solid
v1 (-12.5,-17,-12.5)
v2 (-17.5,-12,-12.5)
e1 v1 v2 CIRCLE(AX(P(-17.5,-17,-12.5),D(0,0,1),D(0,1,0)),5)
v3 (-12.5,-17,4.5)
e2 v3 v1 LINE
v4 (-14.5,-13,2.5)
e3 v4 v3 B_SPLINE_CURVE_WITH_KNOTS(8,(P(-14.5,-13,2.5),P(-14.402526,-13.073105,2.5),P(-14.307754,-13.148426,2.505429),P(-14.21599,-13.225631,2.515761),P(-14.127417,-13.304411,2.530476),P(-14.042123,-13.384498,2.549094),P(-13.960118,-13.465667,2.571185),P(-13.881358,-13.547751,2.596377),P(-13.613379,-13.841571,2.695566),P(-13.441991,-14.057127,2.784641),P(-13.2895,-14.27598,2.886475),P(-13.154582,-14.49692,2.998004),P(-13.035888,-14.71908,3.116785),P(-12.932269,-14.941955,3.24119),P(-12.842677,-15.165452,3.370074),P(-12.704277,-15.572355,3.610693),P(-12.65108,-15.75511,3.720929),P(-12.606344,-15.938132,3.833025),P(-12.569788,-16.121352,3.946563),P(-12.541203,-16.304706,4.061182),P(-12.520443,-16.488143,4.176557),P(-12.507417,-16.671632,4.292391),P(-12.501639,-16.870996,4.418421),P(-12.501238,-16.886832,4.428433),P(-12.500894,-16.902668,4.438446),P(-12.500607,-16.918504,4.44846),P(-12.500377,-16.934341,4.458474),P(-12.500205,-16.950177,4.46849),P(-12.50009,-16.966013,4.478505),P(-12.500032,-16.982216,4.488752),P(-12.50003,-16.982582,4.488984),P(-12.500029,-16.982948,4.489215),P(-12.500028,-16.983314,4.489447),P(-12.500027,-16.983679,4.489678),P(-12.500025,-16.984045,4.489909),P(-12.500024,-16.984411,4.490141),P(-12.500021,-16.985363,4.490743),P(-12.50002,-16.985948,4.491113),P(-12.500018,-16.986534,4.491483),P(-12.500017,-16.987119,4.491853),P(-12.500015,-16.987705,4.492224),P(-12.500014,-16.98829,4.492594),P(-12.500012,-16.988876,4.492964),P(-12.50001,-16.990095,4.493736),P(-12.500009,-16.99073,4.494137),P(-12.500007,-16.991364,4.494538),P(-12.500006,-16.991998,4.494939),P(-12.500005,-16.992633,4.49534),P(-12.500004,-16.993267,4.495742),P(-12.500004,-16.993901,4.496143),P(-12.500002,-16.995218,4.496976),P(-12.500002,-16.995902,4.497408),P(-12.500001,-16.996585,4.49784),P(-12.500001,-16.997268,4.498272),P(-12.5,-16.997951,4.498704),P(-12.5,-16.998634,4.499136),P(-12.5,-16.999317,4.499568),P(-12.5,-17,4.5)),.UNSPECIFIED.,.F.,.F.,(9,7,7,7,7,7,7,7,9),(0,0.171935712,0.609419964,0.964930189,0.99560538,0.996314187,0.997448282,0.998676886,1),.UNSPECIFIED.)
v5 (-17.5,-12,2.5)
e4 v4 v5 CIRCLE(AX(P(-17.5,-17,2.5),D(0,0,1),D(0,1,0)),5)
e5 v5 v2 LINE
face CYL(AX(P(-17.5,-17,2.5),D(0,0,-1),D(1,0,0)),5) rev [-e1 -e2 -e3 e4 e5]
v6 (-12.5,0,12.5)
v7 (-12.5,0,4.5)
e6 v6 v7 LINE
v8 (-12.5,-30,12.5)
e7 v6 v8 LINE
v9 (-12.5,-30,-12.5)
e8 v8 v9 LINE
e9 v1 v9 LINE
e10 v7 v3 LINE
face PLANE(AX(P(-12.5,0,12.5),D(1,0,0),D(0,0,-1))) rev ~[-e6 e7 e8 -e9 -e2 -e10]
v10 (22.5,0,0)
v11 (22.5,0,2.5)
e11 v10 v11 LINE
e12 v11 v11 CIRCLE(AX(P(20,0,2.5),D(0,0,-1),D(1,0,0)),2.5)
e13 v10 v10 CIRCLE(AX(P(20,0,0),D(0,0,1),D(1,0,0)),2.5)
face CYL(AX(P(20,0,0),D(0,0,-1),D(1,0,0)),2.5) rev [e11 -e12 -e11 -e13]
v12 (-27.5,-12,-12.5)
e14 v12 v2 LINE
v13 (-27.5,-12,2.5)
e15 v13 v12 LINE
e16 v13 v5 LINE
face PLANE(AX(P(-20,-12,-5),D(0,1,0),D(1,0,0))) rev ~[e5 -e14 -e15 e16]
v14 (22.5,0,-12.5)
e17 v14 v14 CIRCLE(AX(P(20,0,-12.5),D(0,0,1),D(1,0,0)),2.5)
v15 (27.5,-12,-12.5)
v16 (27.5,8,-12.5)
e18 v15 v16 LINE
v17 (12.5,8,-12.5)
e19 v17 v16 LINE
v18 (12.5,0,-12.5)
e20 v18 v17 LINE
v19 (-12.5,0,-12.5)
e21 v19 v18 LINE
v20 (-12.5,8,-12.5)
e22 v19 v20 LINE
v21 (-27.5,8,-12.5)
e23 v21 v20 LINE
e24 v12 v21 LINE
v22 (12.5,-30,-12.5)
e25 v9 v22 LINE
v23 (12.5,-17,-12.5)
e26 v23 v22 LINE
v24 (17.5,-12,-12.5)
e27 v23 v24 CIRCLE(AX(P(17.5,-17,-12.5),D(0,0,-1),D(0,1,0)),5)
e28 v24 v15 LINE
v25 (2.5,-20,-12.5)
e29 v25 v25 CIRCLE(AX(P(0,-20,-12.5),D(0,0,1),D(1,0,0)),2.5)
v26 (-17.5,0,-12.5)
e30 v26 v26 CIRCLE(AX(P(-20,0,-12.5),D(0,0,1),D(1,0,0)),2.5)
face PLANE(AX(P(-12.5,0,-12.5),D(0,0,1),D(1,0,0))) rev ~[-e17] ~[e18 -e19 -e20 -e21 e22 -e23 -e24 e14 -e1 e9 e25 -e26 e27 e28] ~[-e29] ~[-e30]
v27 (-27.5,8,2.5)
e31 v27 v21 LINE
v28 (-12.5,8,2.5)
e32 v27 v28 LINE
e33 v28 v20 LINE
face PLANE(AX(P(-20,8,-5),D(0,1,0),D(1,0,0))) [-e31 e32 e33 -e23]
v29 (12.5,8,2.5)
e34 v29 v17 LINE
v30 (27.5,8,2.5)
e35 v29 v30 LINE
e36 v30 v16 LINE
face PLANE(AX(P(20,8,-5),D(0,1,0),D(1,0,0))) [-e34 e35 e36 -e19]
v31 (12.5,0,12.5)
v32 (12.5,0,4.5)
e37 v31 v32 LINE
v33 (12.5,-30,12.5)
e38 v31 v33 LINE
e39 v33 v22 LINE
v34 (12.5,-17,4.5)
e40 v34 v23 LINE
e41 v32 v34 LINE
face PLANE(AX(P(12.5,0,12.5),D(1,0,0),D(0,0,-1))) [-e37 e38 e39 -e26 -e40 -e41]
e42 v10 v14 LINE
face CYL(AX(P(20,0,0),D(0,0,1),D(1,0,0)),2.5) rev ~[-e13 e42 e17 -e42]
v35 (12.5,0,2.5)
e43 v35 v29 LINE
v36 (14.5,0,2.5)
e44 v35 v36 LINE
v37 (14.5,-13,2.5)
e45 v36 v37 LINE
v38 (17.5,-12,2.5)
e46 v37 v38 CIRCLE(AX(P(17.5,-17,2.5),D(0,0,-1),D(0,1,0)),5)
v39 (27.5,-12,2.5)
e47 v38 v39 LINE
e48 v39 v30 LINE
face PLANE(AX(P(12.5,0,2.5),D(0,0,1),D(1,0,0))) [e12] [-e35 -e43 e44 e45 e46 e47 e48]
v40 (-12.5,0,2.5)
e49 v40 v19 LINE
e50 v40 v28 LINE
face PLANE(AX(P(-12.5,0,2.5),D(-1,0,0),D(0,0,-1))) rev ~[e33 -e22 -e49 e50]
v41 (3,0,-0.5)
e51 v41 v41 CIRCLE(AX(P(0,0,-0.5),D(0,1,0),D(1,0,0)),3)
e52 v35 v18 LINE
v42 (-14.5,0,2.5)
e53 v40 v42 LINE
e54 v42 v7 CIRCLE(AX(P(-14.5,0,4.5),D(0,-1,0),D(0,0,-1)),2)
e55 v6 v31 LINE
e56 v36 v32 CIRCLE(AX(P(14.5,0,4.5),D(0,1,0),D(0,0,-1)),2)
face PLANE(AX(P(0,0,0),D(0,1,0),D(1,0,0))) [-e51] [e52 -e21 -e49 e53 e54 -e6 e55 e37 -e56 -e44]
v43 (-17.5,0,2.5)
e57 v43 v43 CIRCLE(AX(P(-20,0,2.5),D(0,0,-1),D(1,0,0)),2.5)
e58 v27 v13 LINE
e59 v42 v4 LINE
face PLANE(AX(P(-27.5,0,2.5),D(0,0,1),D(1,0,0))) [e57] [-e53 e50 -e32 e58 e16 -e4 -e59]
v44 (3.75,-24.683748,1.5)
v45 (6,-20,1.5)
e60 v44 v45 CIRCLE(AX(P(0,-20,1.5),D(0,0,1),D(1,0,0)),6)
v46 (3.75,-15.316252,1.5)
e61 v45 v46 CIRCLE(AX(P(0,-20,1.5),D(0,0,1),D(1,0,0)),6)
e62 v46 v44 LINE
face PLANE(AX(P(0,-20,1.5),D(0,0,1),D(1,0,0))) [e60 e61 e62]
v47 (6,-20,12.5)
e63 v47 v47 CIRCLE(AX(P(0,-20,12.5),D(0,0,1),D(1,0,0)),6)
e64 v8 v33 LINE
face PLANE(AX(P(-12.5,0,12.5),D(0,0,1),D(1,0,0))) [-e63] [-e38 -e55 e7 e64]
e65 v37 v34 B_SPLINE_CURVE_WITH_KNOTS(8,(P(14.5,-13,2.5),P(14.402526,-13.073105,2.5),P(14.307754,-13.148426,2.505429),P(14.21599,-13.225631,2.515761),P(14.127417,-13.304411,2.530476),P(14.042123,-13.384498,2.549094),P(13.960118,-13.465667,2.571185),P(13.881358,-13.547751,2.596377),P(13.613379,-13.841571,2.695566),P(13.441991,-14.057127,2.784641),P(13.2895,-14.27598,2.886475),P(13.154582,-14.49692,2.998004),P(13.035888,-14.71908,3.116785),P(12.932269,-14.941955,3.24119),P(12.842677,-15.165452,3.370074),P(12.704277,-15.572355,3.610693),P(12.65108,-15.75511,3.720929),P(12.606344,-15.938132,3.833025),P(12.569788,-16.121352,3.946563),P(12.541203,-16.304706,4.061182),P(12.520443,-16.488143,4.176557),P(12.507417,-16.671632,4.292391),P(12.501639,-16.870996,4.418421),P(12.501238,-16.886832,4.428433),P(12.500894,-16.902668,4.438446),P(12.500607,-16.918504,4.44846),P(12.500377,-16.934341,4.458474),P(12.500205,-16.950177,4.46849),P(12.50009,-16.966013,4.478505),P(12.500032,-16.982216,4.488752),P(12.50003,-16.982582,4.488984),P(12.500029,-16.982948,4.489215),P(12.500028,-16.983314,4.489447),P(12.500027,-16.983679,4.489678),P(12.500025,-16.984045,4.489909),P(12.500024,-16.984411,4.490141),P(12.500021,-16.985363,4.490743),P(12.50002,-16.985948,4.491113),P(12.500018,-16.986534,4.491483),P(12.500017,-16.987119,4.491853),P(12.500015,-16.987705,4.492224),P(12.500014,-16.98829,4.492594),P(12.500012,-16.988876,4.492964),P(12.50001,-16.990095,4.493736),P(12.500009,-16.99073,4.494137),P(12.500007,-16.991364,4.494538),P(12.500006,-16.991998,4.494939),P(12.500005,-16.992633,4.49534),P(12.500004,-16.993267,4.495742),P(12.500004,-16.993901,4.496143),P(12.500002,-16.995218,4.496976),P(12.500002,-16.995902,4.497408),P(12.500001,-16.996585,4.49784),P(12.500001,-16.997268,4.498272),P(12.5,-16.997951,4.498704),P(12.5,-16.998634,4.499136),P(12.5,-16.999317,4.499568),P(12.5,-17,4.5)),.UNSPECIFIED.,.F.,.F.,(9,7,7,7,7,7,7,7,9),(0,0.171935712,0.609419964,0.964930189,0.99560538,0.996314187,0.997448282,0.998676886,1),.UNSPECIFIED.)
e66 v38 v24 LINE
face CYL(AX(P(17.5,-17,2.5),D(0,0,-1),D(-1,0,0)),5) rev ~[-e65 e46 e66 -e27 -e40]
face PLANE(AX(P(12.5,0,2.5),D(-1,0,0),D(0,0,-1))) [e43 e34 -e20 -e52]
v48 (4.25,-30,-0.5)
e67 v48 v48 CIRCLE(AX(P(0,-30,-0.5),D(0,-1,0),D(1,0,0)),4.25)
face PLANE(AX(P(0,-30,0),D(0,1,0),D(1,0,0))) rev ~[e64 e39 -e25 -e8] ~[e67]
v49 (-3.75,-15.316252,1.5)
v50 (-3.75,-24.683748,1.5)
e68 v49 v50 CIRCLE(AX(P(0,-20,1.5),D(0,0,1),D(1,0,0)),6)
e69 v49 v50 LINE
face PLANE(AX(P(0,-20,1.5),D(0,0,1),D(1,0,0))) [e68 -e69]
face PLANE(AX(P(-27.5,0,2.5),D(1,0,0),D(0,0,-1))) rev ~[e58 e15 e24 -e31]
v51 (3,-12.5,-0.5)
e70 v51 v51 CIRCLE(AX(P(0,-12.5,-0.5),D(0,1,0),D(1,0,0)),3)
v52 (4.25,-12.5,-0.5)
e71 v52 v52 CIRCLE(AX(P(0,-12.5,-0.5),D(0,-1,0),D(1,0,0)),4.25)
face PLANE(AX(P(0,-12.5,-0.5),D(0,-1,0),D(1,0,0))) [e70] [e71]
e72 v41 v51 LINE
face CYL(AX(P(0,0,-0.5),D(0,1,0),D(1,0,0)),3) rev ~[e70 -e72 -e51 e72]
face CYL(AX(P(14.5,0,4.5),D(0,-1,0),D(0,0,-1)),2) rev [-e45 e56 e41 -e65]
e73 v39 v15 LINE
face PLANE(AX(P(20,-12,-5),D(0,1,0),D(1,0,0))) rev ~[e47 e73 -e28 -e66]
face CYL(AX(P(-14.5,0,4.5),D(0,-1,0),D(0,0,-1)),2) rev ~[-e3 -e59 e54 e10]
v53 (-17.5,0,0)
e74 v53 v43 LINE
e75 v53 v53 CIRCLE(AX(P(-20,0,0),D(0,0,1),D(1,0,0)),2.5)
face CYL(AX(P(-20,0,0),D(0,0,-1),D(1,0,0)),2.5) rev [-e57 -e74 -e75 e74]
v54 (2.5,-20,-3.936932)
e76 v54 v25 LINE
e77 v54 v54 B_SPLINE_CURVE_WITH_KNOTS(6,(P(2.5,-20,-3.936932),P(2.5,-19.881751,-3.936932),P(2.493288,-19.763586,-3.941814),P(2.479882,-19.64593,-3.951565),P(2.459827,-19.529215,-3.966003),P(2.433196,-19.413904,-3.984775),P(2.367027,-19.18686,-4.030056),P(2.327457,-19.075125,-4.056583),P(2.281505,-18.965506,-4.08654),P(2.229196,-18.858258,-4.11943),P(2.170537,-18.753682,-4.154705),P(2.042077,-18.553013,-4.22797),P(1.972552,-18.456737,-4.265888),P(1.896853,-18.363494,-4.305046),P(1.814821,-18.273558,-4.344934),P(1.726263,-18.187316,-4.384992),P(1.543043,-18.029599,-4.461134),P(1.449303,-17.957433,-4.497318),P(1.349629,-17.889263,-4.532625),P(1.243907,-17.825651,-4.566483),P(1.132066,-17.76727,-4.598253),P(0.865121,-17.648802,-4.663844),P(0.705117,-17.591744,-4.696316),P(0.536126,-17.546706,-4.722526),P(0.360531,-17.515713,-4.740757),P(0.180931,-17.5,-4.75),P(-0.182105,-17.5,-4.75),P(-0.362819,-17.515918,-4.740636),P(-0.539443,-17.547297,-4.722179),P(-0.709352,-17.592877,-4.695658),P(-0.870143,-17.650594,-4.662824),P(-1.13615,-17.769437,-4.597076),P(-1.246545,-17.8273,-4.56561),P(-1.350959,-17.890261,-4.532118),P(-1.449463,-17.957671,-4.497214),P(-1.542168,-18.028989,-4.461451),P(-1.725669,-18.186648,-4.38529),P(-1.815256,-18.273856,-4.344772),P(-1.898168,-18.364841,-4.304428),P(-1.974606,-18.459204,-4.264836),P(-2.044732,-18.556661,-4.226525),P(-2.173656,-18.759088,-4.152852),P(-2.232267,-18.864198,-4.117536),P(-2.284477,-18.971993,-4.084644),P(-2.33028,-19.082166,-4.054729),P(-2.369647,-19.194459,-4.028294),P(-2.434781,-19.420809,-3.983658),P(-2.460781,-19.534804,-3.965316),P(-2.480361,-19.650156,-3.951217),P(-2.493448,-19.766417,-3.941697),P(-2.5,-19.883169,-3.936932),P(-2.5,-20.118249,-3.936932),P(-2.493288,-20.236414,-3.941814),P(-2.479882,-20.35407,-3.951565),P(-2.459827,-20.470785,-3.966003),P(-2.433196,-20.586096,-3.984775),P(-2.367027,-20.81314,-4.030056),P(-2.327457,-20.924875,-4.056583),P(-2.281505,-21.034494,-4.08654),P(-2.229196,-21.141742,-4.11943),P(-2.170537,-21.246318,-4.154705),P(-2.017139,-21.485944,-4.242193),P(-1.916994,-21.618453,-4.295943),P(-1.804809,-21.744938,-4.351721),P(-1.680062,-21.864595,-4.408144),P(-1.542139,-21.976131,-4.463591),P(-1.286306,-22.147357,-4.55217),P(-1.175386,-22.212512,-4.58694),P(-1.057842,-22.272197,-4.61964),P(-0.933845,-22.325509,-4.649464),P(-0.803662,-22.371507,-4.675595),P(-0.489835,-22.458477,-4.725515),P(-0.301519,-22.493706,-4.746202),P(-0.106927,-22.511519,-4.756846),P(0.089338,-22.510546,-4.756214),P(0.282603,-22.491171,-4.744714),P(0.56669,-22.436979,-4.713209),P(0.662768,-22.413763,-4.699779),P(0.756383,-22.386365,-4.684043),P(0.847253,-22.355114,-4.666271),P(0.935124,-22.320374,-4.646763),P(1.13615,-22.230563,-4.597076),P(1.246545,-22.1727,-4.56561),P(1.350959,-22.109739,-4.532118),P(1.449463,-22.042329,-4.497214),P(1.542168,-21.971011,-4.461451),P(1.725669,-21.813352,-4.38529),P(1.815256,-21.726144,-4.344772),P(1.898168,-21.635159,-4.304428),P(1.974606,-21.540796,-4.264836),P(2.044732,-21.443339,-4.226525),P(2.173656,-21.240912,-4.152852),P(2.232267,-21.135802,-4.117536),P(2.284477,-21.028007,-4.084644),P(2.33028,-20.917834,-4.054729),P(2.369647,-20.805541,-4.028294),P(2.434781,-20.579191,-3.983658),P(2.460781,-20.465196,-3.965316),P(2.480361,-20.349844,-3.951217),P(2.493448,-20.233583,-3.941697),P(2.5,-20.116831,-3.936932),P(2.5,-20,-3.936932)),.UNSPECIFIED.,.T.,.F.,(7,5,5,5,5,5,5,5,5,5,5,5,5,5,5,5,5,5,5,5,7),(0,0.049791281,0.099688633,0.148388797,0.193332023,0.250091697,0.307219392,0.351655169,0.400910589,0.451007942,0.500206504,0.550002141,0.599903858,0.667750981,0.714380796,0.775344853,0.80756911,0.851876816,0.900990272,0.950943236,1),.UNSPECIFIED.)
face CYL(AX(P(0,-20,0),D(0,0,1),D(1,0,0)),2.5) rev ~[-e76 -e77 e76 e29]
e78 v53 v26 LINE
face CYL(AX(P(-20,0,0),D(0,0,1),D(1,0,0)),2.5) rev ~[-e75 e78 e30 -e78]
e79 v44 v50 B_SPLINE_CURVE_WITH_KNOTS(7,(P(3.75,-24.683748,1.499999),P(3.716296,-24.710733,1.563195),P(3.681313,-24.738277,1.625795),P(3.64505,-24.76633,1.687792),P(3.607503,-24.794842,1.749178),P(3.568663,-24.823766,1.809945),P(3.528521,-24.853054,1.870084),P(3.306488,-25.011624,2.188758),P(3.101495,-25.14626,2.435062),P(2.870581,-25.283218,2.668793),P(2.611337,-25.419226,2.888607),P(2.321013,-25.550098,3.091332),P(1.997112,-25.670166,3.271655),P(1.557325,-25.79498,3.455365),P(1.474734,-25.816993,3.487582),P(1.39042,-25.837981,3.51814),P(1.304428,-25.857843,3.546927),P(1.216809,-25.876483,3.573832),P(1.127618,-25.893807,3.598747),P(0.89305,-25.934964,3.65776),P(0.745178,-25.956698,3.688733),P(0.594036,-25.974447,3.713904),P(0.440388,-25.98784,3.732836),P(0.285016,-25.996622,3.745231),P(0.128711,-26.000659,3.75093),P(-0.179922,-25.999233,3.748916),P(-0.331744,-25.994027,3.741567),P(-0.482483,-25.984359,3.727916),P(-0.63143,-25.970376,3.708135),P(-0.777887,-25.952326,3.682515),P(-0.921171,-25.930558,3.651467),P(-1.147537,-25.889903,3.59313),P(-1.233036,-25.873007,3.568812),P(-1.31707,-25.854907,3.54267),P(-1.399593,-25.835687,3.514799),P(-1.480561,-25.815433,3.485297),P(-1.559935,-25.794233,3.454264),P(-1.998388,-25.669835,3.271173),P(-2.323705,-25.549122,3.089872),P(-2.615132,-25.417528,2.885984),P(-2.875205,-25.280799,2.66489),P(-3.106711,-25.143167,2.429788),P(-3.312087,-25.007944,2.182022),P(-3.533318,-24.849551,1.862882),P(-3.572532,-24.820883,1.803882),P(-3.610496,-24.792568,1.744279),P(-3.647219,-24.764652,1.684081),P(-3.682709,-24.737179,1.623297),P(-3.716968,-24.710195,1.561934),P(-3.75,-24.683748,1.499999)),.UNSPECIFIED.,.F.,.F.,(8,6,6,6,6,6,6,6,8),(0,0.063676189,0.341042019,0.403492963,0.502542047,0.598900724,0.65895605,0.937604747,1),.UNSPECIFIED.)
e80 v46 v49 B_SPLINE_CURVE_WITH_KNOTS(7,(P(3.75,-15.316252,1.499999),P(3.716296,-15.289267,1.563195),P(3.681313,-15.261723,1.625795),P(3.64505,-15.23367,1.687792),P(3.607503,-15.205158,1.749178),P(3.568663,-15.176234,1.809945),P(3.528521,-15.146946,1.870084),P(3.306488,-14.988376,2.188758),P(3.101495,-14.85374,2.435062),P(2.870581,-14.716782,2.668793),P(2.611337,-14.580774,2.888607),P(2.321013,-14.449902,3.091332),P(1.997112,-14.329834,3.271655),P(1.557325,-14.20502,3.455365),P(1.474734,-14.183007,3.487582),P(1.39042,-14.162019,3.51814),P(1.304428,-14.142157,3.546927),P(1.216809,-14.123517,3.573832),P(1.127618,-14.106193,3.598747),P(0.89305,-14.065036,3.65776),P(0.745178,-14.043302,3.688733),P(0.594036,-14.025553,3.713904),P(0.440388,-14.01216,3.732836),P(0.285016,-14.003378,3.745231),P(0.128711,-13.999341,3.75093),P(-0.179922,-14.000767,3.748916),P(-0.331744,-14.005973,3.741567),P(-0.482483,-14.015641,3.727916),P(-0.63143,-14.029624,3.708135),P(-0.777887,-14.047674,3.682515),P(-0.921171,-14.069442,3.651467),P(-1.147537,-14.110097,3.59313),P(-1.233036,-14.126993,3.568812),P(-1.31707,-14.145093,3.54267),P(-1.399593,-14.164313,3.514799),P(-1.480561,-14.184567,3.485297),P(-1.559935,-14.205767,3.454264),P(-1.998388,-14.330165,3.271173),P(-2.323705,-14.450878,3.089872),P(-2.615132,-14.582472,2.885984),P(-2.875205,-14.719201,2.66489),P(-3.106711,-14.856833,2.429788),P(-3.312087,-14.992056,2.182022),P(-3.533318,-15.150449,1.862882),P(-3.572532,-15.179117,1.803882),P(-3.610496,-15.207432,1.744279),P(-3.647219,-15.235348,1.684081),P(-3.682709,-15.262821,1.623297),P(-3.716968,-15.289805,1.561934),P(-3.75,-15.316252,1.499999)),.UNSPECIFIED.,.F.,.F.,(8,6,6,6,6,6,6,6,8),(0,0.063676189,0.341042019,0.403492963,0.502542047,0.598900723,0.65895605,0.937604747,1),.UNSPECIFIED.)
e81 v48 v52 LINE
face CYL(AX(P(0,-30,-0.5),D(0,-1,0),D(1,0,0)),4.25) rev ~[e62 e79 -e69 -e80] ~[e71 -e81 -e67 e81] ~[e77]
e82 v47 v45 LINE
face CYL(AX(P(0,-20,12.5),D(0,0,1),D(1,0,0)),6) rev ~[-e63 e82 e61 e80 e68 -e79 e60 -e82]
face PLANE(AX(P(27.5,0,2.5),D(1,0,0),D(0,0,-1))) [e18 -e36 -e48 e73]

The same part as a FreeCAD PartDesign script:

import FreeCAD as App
import Part
import Sketcher

V = App.Vector
Q = App.Units.Quantity


def edges_at(feature, points):
    """Names of the edges that pass closest to the given points."""
    edges = feature.Shape.Edges
    near = lambda p: min(range(len(edges)), key=lambda i: edges[i].distToShape(Part.Vertex(*p))[0])
    return sorted({f"Edge{near(p) + 1}" for p in points})


def add_polygon(sketch, points):
    """Adds a closed chain of lines whose ends are joined by coincident constraints."""
    first, n = sketch.GeometryCount, len(points)
    for a, b in zip(points, points[1:] + points[:1]):
        sketch.addGeometry(Part.LineSegment(App.Vector(*a, 0), App.Vector(*b, 0)), False)
    for i in range(n):
        sketch.addConstraint(Sketcher.Constraint("Coincident", first + i, 2, first + (i + 1) % n, 1))

doc = App.newDocument("Part")
body = doc.addObject("PartDesign::Body", "Body")

sketch1 = body.newObject("Sketcher::SketchObject", "Sketch")
sketch1.AttachmentSupport = (doc.getObject("XZ_Plane"), [""])
sketch1.MapMode = "FlatFace"
add_polygon(sketch1, [(-12, -12), (-12, 12), (12, 12), (12, -12)])
sketch1.addConstraint(Sketcher.Constraint("Vertical", 0))
sketch1.addConstraint(Sketcher.Constraint("Horizontal", 1))
sketch1.addConstraint(Sketcher.Constraint("Vertical", 2))
sketch1.addConstraint(Sketcher.Constraint("Horizontal", 3))
sketch1.addConstraint(Sketcher.Constraint("Symmetric", 0, 2, 2, 2, -1, 1))
sketch1.addConstraint(Sketcher.Constraint("Equal", 3, 0))
sketch1.addConstraint(Sketcher.Constraint("DistanceX", 1, 1, 1, 2, Q("25 mm")))
pad1 = body.newObject("PartDesign::Pad", "Pad")
pad1.Profile = sketch1
pad1.Length = 30

sketch2 = body.newObject("Sketcher::SketchObject", "Sketch001")
sketch2.AttachmentSupport = (doc.getObject("XZ_Plane"), [""])
sketch2.MapMode = "FlatFace"
add_polygon(sketch2, [(12, -12), (12, 2), (28, 2), (28, -12)])
add_polygon(sketch2, [(-28, -12), (-28, 2), (-12, 2), (-12, -12)])
sketch2.addConstraint(Sketcher.Constraint("Vertical", 0))
sketch2.addConstraint(Sketcher.Constraint("Horizontal", 1))
sketch2.addConstraint(Sketcher.Constraint("Vertical", 2))
sketch2.addConstraint(Sketcher.Constraint("Horizontal", 3))
sketch2.addConstraint(Sketcher.Constraint("Vertical", 4))
sketch2.addConstraint(Sketcher.Constraint("Horizontal", 5))
sketch2.addConstraint(Sketcher.Constraint("Vertical", 6))
sketch2.addConstraint(Sketcher.Constraint("Horizontal", 7))
sketch2.addConstraint(Sketcher.Constraint("Symmetric", 1, 2, 4, 2, -2))
sketch2.addConstraint(Sketcher.Constraint("Symmetric", 3, 2, 6, 2, -2))
sketch2.addConstraint(Sketcher.Constraint("Equal", 7, 0))
sketch2.addConstraint(Sketcher.Constraint("DistanceX", 1, 1, 1, 2, Q("15 mm")))
sketch2.addConstraint(Sketcher.Constraint("DistanceX", 4, 2, 0, 2, Q("40 mm")))
sketch2.addConstraint(Sketcher.Constraint("DistanceY", -1, 1, 0, 2, Q("2.5 mm")))
pad2 = body.newObject("PartDesign::Pad", "Pad001")
pad2.Profile = sketch2
pad2.Type = "TwoLengths"
pad2.Length = 8
pad2.Length2 = 12
pad2.Reversed = True

sketch3 = body.newObject("Sketcher::SketchObject", "Sketch002")
sketch3.AttachmentSupport = (doc.getObject("XY_Plane"), [""])
sketch3.MapMode = "FlatFace"
sketch3.addGeometry(Part.Circle(V(0, -20, 0), V(0, 0, 1), 2.5), False)
sketch3.addGeometry(Part.Circle(V(20, 0, 0), V(0, 0, 1), 2.5), False)
sketch3.addGeometry(Part.Circle(V(-20, 0, 0), V(0, 0, 1), 2.5), False)
sketch3.addConstraint(Sketcher.Constraint("Equal", 0, 1))
sketch3.addConstraint(Sketcher.Constraint("Equal", 1, 2))
sketch3.addConstraint(Sketcher.Constraint("Symmetric", 1, 3, 2, 3, -1, 1))
sketch3.addConstraint(Sketcher.Constraint("PointOnObject", 0, 3, -2))
sketch3.addConstraint(Sketcher.Constraint("PointOnObject", 1, 3, -1))
sketch3.addConstraint(Sketcher.Constraint("Diameter", 0, Q("5 mm")))
sketch3.addConstraint(Sketcher.Constraint("DistanceY", 0, 3, -1, 1, Q("20 mm")))
sketch3.addConstraint(Sketcher.Constraint("DistanceX", -1, 1, 1, 3, Q("20 mm")))
pocket1 = body.newObject("PartDesign::Pocket", "Pocket")
pocket1.Profile = sketch3
pocket1.Type = "ThroughAll"
pocket1.Midplane = True

sketch4 = body.newObject("Sketcher::SketchObject", "Sketch003")
sketch4.AttachmentSupport = (doc.getObject("XY_Plane"), [""])
sketch4.MapMode = "FlatFace"
sketch4.AttachmentOffset = App.Placement(V(0, 0, 12.5), App.Rotation())
sketch4.addGeometry(Part.Circle(V(0, -20, 0), V(0, 0, 1), 6), False)
sketch4.addConstraint(Sketcher.Constraint("PointOnObject", 0, 3, -2))
sketch4.addConstraint(Sketcher.Constraint("Diameter", 0, Q("12 mm")))
sketch4.addConstraint(Sketcher.Constraint("DistanceY", 0, 3, -1, 1, Q("20 mm")))
pocket2 = body.newObject("PartDesign::Pocket", "Pocket001")
pocket2.Profile = sketch4
pocket2.Length = 11

sketch5 = body.newObject("Sketcher::SketchObject", "Sketch004")
sketch5.AttachmentSupport = (doc.getObject("XZ_Plane"), [""])
sketch5.MapMode = "FlatFace"
sketch5.addGeometry(Part.Circle(V(0, -0.5, 0), V(0, 0, 1), 3), False)
sketch5.addConstraint(Sketcher.Constraint("PointOnObject", 0, 3, -2))
sketch5.addConstraint(Sketcher.Constraint("Diameter", 0, Q("6 mm")))
sketch5.addConstraint(Sketcher.Constraint("DistanceY", 0, 3, -1, 1, Q("0.5 mm")))
pocket3 = body.newObject("PartDesign::Pocket", "Pocket002")
pocket3.Profile = sketch5
pocket3.Type = "ThroughAll"
pocket3.Reversed = True

sketch6 = body.newObject("Sketcher::SketchObject", "Sketch005")
sketch6.AttachmentSupport = (doc.getObject("XZ_Plane"), [""])
sketch6.MapMode = "FlatFace"
sketch6.AttachmentOffset = App.Placement(V(0, 0, 30), App.Rotation())
sketch6.addGeometry(Part.Circle(V(0, -0.5, 0), V(0, 0, 1), 4.2), False)
sketch6.addConstraint(Sketcher.Constraint("PointOnObject", 0, 3, -2))
sketch6.addConstraint(Sketcher.Constraint("Diameter", 0, Q("8.5 mm")))
sketch6.addConstraint(Sketcher.Constraint("DistanceY", 0, 3, -1, 1, Q("0.5 mm")))
pocket4 = body.newObject("PartDesign::Pocket", "Pocket003")
pocket4.Profile = sketch6
pocket4.Length = 17.5
doc.recompute()

fillet = body.newObject("PartDesign::Fillet", "Fillet")
fillet.Base = (pocket4, edges_at(pocket4, [(12.5, -12, -5), (-12.5, -12, -5)]))
fillet.Radius = 5
doc.recompute()

fillet2 = body.newObject("PartDesign::Fillet", "Fillet001")
fillet2.Base = (fillet, edges_at(fillet, [(12.5, -8.5, 2.5), (-12.5, -8.5, 2.5)]))
fillet2.Radius = 2

doc.recompute()
